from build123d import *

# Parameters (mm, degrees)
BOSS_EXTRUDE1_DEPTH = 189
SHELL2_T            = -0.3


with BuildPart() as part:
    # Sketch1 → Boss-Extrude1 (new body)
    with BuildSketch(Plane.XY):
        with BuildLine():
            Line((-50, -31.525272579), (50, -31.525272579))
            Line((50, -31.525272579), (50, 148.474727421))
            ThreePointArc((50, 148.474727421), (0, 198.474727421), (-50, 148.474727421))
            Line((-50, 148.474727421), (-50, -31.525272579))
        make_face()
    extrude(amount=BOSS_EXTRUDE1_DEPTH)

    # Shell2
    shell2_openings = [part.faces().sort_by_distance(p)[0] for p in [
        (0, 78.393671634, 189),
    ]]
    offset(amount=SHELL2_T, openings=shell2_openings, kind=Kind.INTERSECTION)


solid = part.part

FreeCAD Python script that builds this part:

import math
import FreeCAD as App
import Part
import Sketcher

V = App.Vector
Q = App.Units.Quantity


def faces_at(feature, points):
    """Names of the faces that lie closest to the given points."""
    faces = feature.Shape.Faces
    near = lambda p: min(range(len(faces)), key=lambda i: faces[i].distToShape(Part.Vertex(*p))[0])
    return sorted({f"Face{near(p) + 1}" for p in points})

doc = App.newDocument("Part")
body = doc.addObject("PartDesign::Body", "Body")

# Sketch on XY plane
sketch1 = body.newObject("Sketcher::SketchObject", "Sketch")
sketch1.AttachmentSupport = (doc.getObject("XY_Plane"), [""])
sketch1.MapMode = "FlatFace"
sketch1.addGeometry([
    Part.LineSegment(V(-50, -31.525273, 0), V(50, -31.525273, 0)),
    Part.LineSegment(V(50, -31.525273, 0), V(50, 148.474727, 0)),
    Part.ArcOfCircle(Part.Circle(V(0, 148.474727, 0), V(0, 0, 1), 50), math.radians(0), math.radians(180)),
    Part.LineSegment(V(-50, 148.474727, 0), V(-50, -31.525273, 0)),
], False)
sketch1.addConstraint([
    Sketcher.Constraint("Coincident", 0, 2, 1, 1),
    Sketcher.Constraint("Tangent", 1, 2, 2, 1),
    Sketcher.Constraint("Tangent", 2, 2, 3, 1),
    Sketcher.Constraint("Coincident", 3, 2, 0, 1),
    Sketcher.Constraint("Horizontal", 0),
    Sketcher.Constraint("Vertical", 1),
    Sketcher.Constraint("Vertical", 3),
    Sketcher.Constraint("PointOnObject", 2, 3, -2),
    Sketcher.Constraint("Radius", 2, Q("50 mm")),
    Sketcher.Constraint("DistanceY", 1, 1, 1, 2, Q("180 mm")),
    Sketcher.Constraint("DistanceY", -1, 1, 2, 3, Q("148.474727 mm")),
])
pad1 = body.newObject("PartDesign::Pad", "Pad")
pad1.Profile = sketch1
pad1.Length = 189
doc.recompute()

thickness = body.newObject("PartDesign::Thickness", "Thickness")
thickness.Base = (pad1, faces_at(pad1, [(0, 83.475, 189)]))
thickness.Value = 0.3
thickness.Reversed = True
thickness.Join = "Intersection"

doc.recompute()
